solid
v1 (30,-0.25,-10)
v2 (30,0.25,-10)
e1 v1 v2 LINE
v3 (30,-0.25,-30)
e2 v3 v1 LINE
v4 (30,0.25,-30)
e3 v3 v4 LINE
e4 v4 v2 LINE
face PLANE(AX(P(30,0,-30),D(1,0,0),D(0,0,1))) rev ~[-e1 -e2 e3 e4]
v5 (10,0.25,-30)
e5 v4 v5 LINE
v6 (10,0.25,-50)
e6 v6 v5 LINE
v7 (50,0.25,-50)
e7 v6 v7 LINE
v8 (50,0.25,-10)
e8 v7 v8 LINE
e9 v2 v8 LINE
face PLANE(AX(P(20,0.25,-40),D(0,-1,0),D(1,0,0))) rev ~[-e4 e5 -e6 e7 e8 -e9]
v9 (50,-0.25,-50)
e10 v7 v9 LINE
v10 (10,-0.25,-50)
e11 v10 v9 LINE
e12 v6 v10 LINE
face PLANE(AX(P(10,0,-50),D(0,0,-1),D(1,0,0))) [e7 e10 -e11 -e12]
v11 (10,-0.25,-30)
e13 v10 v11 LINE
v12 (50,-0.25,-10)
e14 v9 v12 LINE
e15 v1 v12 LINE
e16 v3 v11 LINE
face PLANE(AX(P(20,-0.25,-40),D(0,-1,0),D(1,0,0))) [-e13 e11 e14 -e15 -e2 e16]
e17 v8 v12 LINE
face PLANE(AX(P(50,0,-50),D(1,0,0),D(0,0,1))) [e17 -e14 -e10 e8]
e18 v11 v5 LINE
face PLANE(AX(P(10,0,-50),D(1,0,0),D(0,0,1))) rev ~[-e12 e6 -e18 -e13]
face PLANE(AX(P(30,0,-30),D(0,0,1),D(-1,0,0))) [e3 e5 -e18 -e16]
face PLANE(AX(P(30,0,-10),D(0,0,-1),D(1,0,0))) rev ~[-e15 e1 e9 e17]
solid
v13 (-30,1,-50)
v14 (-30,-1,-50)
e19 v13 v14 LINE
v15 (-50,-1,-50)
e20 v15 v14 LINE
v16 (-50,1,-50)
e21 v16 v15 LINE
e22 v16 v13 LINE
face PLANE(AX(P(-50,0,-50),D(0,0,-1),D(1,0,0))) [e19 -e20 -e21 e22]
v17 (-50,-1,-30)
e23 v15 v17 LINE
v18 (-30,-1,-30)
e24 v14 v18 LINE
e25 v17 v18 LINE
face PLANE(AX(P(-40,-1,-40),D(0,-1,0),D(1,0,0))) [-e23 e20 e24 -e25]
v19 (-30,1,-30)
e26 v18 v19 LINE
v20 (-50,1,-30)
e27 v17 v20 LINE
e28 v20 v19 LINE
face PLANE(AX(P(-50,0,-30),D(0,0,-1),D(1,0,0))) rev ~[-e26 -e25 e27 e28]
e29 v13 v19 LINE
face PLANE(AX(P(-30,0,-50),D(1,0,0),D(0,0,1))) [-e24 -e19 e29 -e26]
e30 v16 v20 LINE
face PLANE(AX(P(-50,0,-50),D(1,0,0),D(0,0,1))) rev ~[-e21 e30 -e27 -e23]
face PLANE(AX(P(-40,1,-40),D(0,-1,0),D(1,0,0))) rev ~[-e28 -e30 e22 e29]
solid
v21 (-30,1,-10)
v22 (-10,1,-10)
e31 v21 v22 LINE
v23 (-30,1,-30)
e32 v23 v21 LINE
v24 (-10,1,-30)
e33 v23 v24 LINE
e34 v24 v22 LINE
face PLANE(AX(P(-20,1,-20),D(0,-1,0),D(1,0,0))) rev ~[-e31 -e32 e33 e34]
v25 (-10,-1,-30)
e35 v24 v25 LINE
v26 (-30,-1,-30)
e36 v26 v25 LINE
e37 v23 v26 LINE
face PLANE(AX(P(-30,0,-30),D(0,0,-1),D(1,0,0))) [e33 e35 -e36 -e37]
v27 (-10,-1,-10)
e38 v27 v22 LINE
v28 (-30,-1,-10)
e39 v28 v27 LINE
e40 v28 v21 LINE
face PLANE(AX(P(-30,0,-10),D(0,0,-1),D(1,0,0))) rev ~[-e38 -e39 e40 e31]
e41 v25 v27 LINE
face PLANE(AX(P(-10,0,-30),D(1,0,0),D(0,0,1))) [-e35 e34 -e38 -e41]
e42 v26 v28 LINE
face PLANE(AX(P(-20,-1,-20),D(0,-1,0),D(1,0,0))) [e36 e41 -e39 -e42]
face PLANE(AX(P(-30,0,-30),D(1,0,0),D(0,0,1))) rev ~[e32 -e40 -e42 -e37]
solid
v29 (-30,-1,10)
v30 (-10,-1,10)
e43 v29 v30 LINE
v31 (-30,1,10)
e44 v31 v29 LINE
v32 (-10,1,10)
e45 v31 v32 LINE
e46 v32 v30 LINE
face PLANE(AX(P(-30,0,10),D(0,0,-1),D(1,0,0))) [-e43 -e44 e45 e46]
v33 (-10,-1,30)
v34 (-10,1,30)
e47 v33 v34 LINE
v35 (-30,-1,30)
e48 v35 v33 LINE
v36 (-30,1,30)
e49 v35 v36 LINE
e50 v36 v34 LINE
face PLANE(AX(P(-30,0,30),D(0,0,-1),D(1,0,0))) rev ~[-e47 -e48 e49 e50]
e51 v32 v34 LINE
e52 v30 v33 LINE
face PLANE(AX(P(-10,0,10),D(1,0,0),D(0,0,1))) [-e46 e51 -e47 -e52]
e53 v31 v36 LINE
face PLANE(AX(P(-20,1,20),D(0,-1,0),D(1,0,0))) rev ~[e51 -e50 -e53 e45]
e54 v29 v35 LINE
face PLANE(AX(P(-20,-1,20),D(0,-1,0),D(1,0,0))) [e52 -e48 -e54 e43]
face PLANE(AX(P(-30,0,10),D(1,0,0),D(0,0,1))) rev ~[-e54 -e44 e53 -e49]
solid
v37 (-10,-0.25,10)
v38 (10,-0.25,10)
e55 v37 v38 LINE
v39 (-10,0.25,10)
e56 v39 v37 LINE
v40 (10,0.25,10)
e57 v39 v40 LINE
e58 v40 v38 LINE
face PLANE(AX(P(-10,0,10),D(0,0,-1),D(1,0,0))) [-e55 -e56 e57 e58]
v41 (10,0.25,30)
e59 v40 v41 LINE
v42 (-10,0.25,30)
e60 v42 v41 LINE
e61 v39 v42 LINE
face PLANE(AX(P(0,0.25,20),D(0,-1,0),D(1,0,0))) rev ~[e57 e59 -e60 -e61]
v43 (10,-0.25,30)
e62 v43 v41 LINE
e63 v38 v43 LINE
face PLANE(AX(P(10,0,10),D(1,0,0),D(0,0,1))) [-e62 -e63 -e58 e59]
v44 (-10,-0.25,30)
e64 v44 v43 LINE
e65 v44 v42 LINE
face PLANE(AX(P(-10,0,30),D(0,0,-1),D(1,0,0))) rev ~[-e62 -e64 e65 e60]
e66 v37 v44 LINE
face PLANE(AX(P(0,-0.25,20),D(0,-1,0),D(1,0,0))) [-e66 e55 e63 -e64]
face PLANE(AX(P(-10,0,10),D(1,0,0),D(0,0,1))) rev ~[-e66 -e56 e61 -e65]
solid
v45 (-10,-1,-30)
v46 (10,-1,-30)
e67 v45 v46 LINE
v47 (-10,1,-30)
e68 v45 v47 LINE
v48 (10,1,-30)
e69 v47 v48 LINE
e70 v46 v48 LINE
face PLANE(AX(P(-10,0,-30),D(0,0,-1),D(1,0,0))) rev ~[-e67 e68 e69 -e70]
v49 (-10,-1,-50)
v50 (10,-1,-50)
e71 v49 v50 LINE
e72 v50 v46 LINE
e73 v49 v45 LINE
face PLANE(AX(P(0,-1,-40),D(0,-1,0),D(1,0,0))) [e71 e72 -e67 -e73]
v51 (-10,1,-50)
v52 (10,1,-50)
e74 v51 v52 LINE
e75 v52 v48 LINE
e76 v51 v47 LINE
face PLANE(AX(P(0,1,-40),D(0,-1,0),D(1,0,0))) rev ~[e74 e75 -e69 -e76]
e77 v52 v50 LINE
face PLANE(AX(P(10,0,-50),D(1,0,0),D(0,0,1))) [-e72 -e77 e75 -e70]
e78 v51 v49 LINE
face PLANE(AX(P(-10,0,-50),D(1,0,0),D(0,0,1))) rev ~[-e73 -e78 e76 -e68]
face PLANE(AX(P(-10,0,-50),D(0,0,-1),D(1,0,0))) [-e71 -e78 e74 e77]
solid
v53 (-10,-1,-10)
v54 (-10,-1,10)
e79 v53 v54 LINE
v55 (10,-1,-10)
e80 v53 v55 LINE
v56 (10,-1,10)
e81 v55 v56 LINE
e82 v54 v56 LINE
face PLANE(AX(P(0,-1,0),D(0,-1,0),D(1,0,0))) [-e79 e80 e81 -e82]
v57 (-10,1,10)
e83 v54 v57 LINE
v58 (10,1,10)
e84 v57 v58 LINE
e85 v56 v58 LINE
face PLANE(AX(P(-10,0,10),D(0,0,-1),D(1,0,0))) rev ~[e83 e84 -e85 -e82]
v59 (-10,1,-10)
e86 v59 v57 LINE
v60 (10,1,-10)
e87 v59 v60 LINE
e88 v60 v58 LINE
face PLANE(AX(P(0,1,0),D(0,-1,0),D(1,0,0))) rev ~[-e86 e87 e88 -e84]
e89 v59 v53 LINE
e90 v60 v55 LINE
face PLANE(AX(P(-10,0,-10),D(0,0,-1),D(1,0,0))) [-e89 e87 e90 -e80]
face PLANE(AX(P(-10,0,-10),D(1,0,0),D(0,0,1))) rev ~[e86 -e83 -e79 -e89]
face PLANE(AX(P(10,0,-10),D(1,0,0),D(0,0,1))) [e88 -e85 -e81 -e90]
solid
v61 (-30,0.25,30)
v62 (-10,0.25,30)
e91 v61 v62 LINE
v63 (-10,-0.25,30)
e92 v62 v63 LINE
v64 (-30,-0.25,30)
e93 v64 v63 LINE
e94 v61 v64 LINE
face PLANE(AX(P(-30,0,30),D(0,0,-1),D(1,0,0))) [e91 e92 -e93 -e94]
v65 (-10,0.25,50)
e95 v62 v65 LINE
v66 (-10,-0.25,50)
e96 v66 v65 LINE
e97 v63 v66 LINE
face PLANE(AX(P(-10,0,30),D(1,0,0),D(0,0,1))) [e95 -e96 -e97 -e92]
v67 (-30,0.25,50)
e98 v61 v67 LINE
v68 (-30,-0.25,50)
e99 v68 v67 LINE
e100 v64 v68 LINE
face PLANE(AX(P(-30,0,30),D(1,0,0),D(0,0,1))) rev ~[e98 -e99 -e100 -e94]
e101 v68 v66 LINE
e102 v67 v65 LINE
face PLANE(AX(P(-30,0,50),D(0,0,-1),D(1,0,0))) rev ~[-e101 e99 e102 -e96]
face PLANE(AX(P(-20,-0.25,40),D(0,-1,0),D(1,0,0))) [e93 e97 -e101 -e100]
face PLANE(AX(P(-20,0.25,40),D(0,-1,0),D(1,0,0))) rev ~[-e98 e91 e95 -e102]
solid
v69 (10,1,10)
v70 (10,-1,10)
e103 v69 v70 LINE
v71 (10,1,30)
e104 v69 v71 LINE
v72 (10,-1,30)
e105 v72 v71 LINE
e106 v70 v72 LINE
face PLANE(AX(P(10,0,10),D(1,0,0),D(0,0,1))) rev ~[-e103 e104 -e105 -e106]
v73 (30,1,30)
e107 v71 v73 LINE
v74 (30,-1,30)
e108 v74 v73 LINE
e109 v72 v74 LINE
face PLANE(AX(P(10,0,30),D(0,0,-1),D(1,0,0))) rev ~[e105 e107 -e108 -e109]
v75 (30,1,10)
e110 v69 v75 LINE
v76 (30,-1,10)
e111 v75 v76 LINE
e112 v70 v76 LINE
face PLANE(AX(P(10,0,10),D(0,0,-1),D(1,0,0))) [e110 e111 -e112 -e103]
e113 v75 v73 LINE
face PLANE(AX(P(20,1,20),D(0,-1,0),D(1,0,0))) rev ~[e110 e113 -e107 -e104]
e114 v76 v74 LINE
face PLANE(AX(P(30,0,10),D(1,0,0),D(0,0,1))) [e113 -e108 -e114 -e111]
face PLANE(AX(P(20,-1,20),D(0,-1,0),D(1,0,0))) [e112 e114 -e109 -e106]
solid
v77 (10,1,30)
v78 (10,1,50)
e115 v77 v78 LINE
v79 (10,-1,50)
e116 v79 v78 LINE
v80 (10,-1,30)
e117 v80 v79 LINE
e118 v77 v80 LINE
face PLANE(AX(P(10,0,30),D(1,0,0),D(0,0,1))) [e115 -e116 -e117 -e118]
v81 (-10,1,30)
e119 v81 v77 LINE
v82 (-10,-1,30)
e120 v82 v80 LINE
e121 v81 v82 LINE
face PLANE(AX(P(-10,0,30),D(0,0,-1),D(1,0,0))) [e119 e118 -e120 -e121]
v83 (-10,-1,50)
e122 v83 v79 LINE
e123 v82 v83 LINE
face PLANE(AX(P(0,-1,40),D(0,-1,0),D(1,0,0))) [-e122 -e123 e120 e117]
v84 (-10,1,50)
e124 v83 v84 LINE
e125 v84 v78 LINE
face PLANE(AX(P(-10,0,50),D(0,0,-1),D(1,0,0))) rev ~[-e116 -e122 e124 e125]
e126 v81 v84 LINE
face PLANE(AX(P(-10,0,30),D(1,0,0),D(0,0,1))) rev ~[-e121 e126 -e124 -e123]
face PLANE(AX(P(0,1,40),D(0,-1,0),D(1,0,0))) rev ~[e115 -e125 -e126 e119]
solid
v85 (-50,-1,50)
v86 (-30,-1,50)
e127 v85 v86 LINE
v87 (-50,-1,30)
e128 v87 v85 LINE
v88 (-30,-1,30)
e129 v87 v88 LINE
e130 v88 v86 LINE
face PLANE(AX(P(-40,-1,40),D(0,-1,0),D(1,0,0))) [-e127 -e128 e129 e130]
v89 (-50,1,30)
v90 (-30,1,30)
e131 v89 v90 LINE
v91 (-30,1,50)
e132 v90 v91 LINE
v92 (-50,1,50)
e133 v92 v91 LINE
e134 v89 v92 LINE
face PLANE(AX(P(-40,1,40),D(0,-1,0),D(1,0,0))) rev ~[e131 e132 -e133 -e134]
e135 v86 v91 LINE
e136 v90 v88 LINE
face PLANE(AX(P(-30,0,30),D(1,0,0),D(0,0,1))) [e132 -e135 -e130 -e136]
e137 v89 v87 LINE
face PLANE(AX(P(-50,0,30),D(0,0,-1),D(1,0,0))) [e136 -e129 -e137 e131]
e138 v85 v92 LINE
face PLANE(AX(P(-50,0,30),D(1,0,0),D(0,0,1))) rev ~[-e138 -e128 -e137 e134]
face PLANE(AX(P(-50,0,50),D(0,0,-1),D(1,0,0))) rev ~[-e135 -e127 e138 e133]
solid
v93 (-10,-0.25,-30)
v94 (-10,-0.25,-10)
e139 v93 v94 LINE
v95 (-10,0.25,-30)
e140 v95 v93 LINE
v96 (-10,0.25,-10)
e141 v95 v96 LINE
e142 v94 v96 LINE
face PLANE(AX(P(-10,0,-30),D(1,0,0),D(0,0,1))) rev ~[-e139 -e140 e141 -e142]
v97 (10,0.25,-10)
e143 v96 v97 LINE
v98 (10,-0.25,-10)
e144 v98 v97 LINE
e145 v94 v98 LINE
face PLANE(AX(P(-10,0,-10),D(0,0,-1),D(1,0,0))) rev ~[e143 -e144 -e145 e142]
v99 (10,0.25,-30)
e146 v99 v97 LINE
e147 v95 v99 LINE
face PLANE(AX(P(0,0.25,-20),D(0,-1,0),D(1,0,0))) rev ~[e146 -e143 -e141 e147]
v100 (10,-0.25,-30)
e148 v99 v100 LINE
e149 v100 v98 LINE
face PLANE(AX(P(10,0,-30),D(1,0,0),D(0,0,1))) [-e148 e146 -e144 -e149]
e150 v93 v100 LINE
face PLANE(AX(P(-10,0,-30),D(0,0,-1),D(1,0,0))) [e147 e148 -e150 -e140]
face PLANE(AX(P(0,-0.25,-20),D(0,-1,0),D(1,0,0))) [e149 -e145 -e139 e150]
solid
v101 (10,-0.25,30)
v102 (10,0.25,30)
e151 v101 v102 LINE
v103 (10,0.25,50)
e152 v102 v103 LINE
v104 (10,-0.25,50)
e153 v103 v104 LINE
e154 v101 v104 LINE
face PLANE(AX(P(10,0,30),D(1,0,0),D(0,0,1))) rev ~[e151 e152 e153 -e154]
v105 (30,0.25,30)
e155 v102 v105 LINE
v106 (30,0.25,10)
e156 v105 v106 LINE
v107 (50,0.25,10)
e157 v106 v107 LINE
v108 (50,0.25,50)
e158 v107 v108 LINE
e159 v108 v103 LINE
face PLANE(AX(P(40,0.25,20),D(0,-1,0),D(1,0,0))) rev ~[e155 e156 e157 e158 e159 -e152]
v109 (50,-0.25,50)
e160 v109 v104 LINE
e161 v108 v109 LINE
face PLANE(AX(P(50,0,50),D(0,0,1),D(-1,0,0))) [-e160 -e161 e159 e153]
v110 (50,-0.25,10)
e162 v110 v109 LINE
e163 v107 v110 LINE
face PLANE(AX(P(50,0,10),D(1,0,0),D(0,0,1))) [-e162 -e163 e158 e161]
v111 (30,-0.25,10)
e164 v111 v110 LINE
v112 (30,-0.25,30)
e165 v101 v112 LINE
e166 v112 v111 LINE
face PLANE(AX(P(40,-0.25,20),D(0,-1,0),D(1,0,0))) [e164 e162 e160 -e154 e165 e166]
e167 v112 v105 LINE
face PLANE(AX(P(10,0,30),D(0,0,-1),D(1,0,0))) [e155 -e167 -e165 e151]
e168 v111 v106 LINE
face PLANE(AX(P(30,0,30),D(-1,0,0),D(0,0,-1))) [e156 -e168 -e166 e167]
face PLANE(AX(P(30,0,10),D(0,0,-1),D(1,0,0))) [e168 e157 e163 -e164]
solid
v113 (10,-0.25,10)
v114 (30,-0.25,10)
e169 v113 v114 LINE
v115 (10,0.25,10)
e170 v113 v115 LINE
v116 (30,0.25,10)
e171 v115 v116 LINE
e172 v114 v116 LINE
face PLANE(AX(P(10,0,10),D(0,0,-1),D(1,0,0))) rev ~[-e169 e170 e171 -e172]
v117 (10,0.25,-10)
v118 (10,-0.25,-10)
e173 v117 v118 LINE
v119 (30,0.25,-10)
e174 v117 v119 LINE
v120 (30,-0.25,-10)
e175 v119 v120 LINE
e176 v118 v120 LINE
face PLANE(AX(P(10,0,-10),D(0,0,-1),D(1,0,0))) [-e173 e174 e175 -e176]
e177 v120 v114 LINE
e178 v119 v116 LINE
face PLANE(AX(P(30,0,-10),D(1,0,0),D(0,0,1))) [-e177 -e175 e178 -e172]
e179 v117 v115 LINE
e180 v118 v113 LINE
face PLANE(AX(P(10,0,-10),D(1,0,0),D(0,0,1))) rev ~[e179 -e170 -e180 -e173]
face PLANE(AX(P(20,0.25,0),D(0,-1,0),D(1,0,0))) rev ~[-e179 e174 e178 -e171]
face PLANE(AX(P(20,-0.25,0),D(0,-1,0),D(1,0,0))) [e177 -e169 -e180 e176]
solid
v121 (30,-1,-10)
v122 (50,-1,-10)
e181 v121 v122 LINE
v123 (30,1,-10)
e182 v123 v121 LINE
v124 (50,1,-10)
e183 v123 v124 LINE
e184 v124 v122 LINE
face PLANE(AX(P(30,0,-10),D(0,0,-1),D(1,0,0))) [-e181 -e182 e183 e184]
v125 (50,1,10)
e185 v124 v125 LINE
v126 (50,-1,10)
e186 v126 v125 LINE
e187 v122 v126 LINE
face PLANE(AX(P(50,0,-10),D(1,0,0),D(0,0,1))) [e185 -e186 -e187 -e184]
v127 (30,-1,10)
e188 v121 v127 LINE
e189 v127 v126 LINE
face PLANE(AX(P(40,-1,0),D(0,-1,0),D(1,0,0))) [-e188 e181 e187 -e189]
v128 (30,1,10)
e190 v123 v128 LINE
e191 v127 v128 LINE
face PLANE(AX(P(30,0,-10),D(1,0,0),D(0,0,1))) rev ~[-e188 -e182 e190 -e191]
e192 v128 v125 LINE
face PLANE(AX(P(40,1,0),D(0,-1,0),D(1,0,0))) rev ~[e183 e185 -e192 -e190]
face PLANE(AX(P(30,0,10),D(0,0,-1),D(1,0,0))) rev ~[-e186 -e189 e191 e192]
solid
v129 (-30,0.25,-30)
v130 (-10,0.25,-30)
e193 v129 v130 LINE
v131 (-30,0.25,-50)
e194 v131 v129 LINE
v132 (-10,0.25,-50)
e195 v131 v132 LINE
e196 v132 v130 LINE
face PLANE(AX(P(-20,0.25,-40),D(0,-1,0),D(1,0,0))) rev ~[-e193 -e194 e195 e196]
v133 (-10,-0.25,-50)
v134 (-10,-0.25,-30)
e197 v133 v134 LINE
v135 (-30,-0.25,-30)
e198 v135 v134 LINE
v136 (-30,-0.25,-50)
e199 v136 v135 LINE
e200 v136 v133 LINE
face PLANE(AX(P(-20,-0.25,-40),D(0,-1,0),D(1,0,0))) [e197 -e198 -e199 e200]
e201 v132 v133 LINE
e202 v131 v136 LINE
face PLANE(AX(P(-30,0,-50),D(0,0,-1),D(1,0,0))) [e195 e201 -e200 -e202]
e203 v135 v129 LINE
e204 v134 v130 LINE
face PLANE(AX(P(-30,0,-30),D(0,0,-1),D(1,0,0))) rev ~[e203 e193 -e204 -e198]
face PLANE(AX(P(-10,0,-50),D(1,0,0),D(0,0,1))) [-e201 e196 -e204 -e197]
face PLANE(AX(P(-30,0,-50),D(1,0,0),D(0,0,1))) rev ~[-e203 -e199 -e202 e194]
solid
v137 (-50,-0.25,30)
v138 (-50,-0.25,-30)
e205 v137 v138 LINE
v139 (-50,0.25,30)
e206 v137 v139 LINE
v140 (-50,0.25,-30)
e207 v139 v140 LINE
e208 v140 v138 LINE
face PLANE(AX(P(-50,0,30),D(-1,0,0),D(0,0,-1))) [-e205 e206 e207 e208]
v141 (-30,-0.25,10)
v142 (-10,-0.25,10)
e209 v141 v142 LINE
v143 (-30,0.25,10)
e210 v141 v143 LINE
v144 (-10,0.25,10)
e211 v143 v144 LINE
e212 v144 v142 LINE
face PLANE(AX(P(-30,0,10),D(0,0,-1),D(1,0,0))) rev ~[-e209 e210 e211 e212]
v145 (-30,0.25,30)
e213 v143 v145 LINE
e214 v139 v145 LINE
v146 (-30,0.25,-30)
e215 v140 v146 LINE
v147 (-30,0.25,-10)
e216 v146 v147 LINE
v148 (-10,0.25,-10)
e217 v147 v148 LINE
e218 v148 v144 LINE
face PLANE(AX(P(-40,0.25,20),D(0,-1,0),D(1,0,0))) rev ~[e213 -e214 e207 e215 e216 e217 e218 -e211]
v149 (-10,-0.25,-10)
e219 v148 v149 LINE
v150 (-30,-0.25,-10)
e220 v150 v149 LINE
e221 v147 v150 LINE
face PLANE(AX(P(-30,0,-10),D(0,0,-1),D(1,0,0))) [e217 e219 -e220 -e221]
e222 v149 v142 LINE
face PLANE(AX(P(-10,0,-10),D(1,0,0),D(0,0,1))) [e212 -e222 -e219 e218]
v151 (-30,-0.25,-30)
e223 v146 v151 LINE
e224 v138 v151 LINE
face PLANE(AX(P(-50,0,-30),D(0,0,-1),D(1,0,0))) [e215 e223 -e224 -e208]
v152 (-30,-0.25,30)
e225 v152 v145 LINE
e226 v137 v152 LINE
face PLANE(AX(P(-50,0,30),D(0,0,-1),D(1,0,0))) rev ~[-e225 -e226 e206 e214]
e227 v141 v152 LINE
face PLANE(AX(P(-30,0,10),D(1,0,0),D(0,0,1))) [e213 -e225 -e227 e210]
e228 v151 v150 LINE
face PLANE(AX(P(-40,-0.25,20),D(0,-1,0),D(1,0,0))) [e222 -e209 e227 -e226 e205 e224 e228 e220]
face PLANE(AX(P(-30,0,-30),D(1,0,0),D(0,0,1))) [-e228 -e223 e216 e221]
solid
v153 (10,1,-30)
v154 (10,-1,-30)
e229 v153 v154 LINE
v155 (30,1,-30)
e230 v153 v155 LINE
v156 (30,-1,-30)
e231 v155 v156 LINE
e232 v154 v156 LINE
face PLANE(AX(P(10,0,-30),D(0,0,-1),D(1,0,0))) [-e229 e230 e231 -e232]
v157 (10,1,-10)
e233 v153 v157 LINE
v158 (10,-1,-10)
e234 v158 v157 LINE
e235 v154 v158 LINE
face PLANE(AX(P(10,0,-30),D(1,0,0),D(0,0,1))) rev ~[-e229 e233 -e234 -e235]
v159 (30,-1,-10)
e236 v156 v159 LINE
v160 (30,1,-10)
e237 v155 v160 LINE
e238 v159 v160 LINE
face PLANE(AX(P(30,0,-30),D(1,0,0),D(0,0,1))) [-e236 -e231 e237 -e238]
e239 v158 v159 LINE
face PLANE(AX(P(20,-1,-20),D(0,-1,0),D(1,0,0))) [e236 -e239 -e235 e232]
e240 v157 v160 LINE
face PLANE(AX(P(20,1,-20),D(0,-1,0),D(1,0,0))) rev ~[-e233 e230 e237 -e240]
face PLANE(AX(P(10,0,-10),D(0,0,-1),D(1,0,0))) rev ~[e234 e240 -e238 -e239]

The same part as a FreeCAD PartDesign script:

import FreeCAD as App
import Part
import Sketcher

V = App.Vector

doc = App.newDocument("Part")
body = doc.addObject("PartDesign::Body", "Body")

# Sketch on XZ plane
sketch1 = doc.addObject("Sketcher::SketchObject", "Sketch")
body.addObject(sketch1)
sketch1.AttachmentSupport = (doc.XZ_Plane, [""])
sketch1.MapMode = "FlatFace"
sketch1.addGeometry([
    Part.LineSegment(V(-50, 50, 0), V(-50, 30, 0)),
    Part.LineSegment(V(-50, 30, 0), V(-30, 30, 0)),
    Part.LineSegment(V(-30, 30, 0), V(-30, 50, 0)),
    Part.LineSegment(V(-30, 50, 0), V(-50, 50, 0)),
], False)
sketch1.addConstraint([
    Sketcher.Constraint("Coincident", 0, 2, 1, 1),
    Sketcher.Constraint("Coincident", 1, 2, 2, 1),
    Sketcher.Constraint("Coincident", 2, 2, 3, 1),
    Sketcher.Constraint("Coincident", 3, 2, 0, 1),
    Sketcher.Constraint("Vertical", 0),
    Sketcher.Constraint("Horizontal", 1),
    Sketcher.Constraint("Vertical", 2),
    Sketcher.Constraint("Horizontal", 3),
    Sketcher.Constraint("Equal", 3, 0),
    Sketcher.Constraint("DistanceX", 1, 1, 1, 2, 20.0),
    Sketcher.Constraint("DistanceX", 0, 2, -1, 1, 50.0),
    Sketcher.Constraint("DistanceY", -1, 1, 0, 2, 30.0),
])
pad1 = doc.addObject("PartDesign::Pad", "Pad")
body.addObject(pad1)
pad1.Profile = sketch1
pad1.Length = 2
pad1.Midplane = True
body2 = doc.addObject("PartDesign::Body", "Body001")

# Sketch on XZ plane
sketch2 = doc.addObject("Sketcher::SketchObject", "Sketch001")
body2.addObject(sketch2)
sketch2.AttachmentSupport = (doc.getObject("XZ_Plane001"), [""])
sketch2.MapMode = "FlatFace"
sketch2.addGeometry([
    Part.LineSegment(V(-30, 30, 0), V(-30, 10, 0)),
    Part.LineSegment(V(-30, 10, 0), V(-10, 10, 0)),
    Part.LineSegment(V(-10, 10, 0), V(-10, 30, 0)),
    Part.LineSegment(V(-10, 30, 0), V(-30, 30, 0)),
], False)
sketch2.addConstraint([
    Sketcher.Constraint("Coincident", 0, 2, 1, 1),
    Sketcher.Constraint("Coincident", 1, 2, 2, 1),
    Sketcher.Constraint("Coincident", 2, 2, 3, 1),
    Sketcher.Constraint("Coincident", 3, 2, 0, 1),
    Sketcher.Constraint("Vertical", 0),
    Sketcher.Constraint("Horizontal", 1),
    Sketcher.Constraint("Vertical", 2),
    Sketcher.Constraint("Horizontal", 3),
    Sketcher.Constraint("Equal", 3, 0),
    Sketcher.Constraint("DistanceX", 1, 1, 1, 2, 20.0),
    Sketcher.Constraint("DistanceX", 0, 2, -1, 1, 30.0),
    Sketcher.Constraint("DistanceY", -1, 1, 0, 2, 10.0),
])
pad2 = doc.addObject("PartDesign::Pad", "Pad001")
body2.addObject(pad2)
pad2.Profile = sketch2
pad2.Length = 2
pad2.Midplane = True
body3 = doc.addObject("PartDesign::Body", "Body002")

# Sketch on XZ plane
sketch3 = doc.addObject("Sketcher::SketchObject", "Sketch002")
body3.addObject(sketch3)
sketch3.AttachmentSupport = (doc.getObject("XZ_Plane002"), [""])
sketch3.MapMode = "FlatFace"
sketch3.addGeometry([
    Part.LineSegment(V(-10, 10, 0), V(-10, -10, 0)),
    Part.LineSegment(V(-10, -10, 0), V(10, -10, 0)),
    Part.LineSegment(V(10, -10, 0), V(10, 10, 0)),
    Part.LineSegment(V(10, 10, 0), V(-10, 10, 0)),
], False)
sketch3.addConstraint([
    Sketcher.Constraint("Coincident", 0, 2, 1, 1),
    Sketcher.Constraint("Coincident", 1, 2, 2, 1),
    Sketcher.Constraint("Coincident", 2, 2, 3, 1),
    Sketcher.Constraint("Coincident", 3, 2, 0, 1),
    Sketcher.Constraint("Vertical", 0),
    Sketcher.Constraint("Horizontal", 1),
    Sketcher.Constraint("Vertical", 2),
    Sketcher.Constraint("Horizontal", 3),
    Sketcher.Constraint("Symmetric", 0, 2, 2, 2, -1, 1),
    Sketcher.Constraint("Equal", 3, 0),
    Sketcher.Constraint("DistanceX", 1, 1, 1, 2, 20.0),
])
pad3 = doc.addObject("PartDesign::Pad", "Pad002")
body3.addObject(pad3)
pad3.Profile = sketch3
pad3.Length = 2
pad3.Midplane = True
body4 = doc.addObject("PartDesign::Body", "Body003")

# Sketch on XZ plane
sketch4 = doc.addObject("Sketcher::SketchObject", "Sketch003")
body4.addObject(sketch4)
sketch4.AttachmentSupport = (doc.getObject("XZ_Plane003"), [""])
sketch4.MapMode = "FlatFace"
sketch4.addGeometry([
    Part.LineSegment(V(-30, -10, 0), V(-30, -30, 0)),
    Part.LineSegment(V(-30, -30, 0), V(-10, -30, 0)),
    Part.LineSegment(V(-10, -30, 0), V(-10, -10, 0)),
    Part.LineSegment(V(-10, -10, 0), V(-30, -10, 0)),
], False)
sketch4.addConstraint([
    Sketcher.Constraint("Coincident", 0, 2, 1, 1),
    Sketcher.Constraint("Coincident", 1, 2, 2, 1),
    Sketcher.Constraint("Coincident", 2, 2, 3, 1),
    Sketcher.Constraint("Coincident", 3, 2, 0, 1),
    Sketcher.Constraint("Vertical", 0),
    Sketcher.Constraint("Horizontal", 1),
    Sketcher.Constraint("Vertical", 2),
    Sketcher.Constraint("Horizontal", 3),
    Sketcher.Constraint("Equal", 3, 0),
    Sketcher.Constraint("DistanceX", 1, 1, 1, 2, 20.0),
    Sketcher.Constraint("DistanceX", 0, 2, -1, 1, 30.0),
    Sketcher.Constraint("DistanceY", 0, 2, -1, 1, 30.0),
])
pad4 = doc.addObject("PartDesign::Pad", "Pad003")
body4.addObject(pad4)
pad4.Profile = sketch4
pad4.Length = 2
pad4.Midplane = True
body5 = doc.addObject("PartDesign::Body", "Body004")

# Sketch on XZ plane
sketch5 = doc.addObject("Sketcher::SketchObject", "Sketch004")
body5.addObject(sketch5)
sketch5.AttachmentSupport = (doc.getObject("XZ_Plane004"), [""])
sketch5.MapMode = "FlatFace"
sketch5.addGeometry([
    Part.LineSegment(V(-50, -30, 0), V(-50, -50, 0)),
    Part.LineSegment(V(-50, -50, 0), V(-30, -50, 0)),
    Part.LineSegment(V(-30, -50, 0), V(-30, -30, 0)),
    Part.LineSegment(V(-30, -30, 0), V(-50, -30, 0)),
], False)
sketch5.addConstraint([
    Sketcher.Constraint("Coincident", 0, 2, 1, 1),
    Sketcher.Constraint("Coincident", 1, 2, 2, 1),
    Sketcher.Constraint("Coincident", 2, 2, 3, 1),
    Sketcher.Constraint("Coincident", 3, 2, 0, 1),
    Sketcher.Constraint("Vertical", 0),
    Sketcher.Constraint("Horizontal", 1),
    Sketcher.Constraint("Vertical", 2),
    Sketcher.Constraint("Horizontal", 3),
    Sketcher.Constraint("Equal", 3, 0),
    Sketcher.Constraint("DistanceX", 1, 1, 1, 2, 20.0),
    Sketcher.Constraint("DistanceX", 0, 2, -1, 1, 50.0),
    Sketcher.Constraint("DistanceY", 0, 2, -1, 1, 50.0),
])
pad5 = doc.addObject("PartDesign::Pad", "Pad004")
body5.addObject(pad5)
pad5.Profile = sketch5
pad5.Length = 2
pad5.Midplane = True
body6 = doc.addObject("PartDesign::Body", "Body005")

# Sketch on XZ plane
sketch6 = doc.addObject("Sketcher::SketchObject", "Sketch005")
body6.addObject(sketch6)
sketch6.AttachmentSupport = (doc.getObject("XZ_Plane005"), [""])
sketch6.MapMode = "FlatFace"
sketch6.addGeometry([
    Part.LineSegment(V(-10, 50, 0), V(-10, 30, 0)),
    Part.LineSegment(V(-10, 30, 0), V(10, 30, 0)),
    Part.LineSegment(V(10, 30, 0), V(10, 50, 0)),
    Part.LineSegment(V(10, 50, 0), V(-10, 50, 0)),
], False)
sketch6.addConstraint([
    Sketcher.Constraint("Coincident", 0, 2, 1, 1),
    Sketcher.Constraint("Coincident", 1, 2, 2, 1),
    Sketcher.Constraint("Coincident", 2, 2, 3, 1),
    Sketcher.Constraint("Coincident", 3, 2, 0, 1),
    Sketcher.Constraint("Vertical", 0),
    Sketcher.Constraint("Horizontal", 1),
    Sketcher.Constraint("Vertical", 2),
    Sketcher.Constraint("Horizontal", 3),
    Sketcher.Constraint("Equal", 3, 0),
    Sketcher.Constraint("DistanceX", 1, 1, 1, 2, 20.0),
    Sketcher.Constraint("DistanceX", 0, 2, -1, 1, 10.0),
    Sketcher.Constraint("DistanceY", -1, 1, 0, 2, 30.0),
])
pad6 = doc.addObject("PartDesign::Pad", "Pad005")
body6.addObject(pad6)
pad6.Profile = sketch6
pad6.Length = 2
pad6.Midplane = True
body7 = doc.addObject("PartDesign::Body", "Body006")

# Sketch on XZ plane
sketch7 = doc.addObject("Sketcher::SketchObject", "Sketch006")
body7.addObject(sketch7)
sketch7.AttachmentSupport = (doc.getObject("XZ_Plane006"), [""])
sketch7.MapMode = "FlatFace"
sketch7.addGeometry([
    Part.LineSegment(V(10, 30, 0), V(10, 10, 0)),
    Part.LineSegment(V(10, 10, 0), V(30, 10, 0)),
    Part.LineSegment(V(30, 10, 0), V(30, 30, 0)),
    Part.LineSegment(V(30, 30, 0), V(10, 30, 0)),
], False)
sketch7.addConstraint([
    Sketcher.Constraint("Coincident", 0, 2, 1, 1),
    Sketcher.Constraint("Coincident", 1, 2, 2, 1),
    Sketcher.Constraint("Coincident", 2, 2, 3, 1),
    Sketcher.Constraint("Coincident", 3, 2, 0, 1),
    Sketcher.Constraint("Vertical", 0),
    Sketcher.Constraint("Horizontal", 1),
    Sketcher.Constraint("Vertical", 2),
    Sketcher.Constraint("Horizontal", 3),
    Sketcher.Constraint("Equal", 3, 0),
    Sketcher.Constraint("DistanceX", 1, 1, 1, 2, 20.0),
    Sketcher.Constraint("DistanceX", -1, 1, 0, 2, 10.0),
    Sketcher.Constraint("DistanceY", -1, 1, 0, 2, 10.0),
])
pad7 = doc.addObject("PartDesign::Pad", "Pad006")
body7.addObject(pad7)
pad7.Profile = sketch7
pad7.Length = 2
pad7.Midplane = True
body8 = doc.addObject("PartDesign::Body", "Body007")

# Sketch on XZ plane
sketch8 = doc.addObject("Sketcher::SketchObject", "Sketch007")
body8.addObject(sketch8)
sketch8.AttachmentSupport = (doc.getObject("XZ_Plane007"), [""])
sketch8.MapMode = "FlatFace"
sketch8.addGeometry([
    Part.LineSegment(V(30, 10, 0), V(30, -10, 0)),
    Part.LineSegment(V(30, -10, 0), V(50, -10, 0)),
    Part.LineSegment(V(50, -10, 0), V(50, 10, 0)),
    Part.LineSegment(V(50, 10, 0), V(30, 10, 0)),
], False)
sketch8.addConstraint([
    Sketcher.Constraint("Coincident", 0, 2, 1, 1),
    Sketcher.Constraint("Coincident", 1, 2, 2, 1),
    Sketcher.Constraint("Coincident", 2, 2, 3, 1),
    Sketcher.Constraint("Coincident", 3, 2, 0, 1),
    Sketcher.Constraint("Vertical", 0),
    Sketcher.Constraint("Horizontal", 1),
    Sketcher.Constraint("Vertical", 2),
    Sketcher.Constraint("Horizontal", 3),
    Sketcher.Constraint("Equal", 3, 0),
    Sketcher.Constraint("DistanceX", 1, 1, 1, 2, 20.0),
    Sketcher.Constraint("DistanceX", -1, 1, 0, 2, 30.0),
    Sketcher.Constraint("DistanceY", 0, 2, -1, 1, 10.0),
])
pad8 = doc.addObject("PartDesign::Pad", "Pad007")
body8.addObject(pad8)
pad8.Profile = sketch8
pad8.Length = 2
pad8.Midplane = True
body9 = doc.addObject("PartDesign::Body", "Body008")

# Sketch on XZ plane
sketch9 = doc.addObject("Sketcher::SketchObject", "Sketch008")
body9.addObject(sketch9)
sketch9.AttachmentSupport = (doc.getObject("XZ_Plane008"), [""])
sketch9.MapMode = "FlatFace"
sketch9.addGeometry([
    Part.LineSegment(V(10, -10, 0), V(10, -30, 0)),
    Part.LineSegment(V(10, -30, 0), V(30, -30, 0)),
    Part.LineSegment(V(30, -30, 0), V(30, -10, 0)),
    Part.LineSegment(V(30, -10, 0), V(10, -10, 0)),
], False)
sketch9.addConstraint([
    Sketcher.Constraint("Coincident", 0, 2, 1, 1),
    Sketcher.Constraint("Coincident", 1, 2, 2, 1),
    Sketcher.Constraint("Coincident", 2, 2, 3, 1),
    Sketcher.Constraint("Coincident", 3, 2, 0, 1),
    Sketcher.Constraint("Vertical", 0),
    Sketcher.Constraint("Horizontal", 1),
    Sketcher.Constraint("Vertical", 2),
    Sketcher.Constraint("Horizontal", 3),
    Sketcher.Constraint("Equal", 3, 0),
    Sketcher.Constraint("DistanceX", 1, 1, 1, 2, 20.0),
    Sketcher.Constraint("DistanceX", -1, 1, 0, 2, 10.0),
    Sketcher.Constraint("DistanceY", 0, 2, -1, 1, 30.0),
])
pad9 = doc.addObject("PartDesign::Pad", "Pad008")
body9.addObject(pad9)
pad9.Profile = sketch9
pad9.Length = 2
pad9.Midplane = True
body10 = doc.addObject("PartDesign::Body", "Body009")

# Sketch on XZ plane
sketch10 = doc.addObject("Sketcher::SketchObject", "Sketch009")
body10.addObject(sketch10)
sketch10.AttachmentSupport = (doc.getObject("XZ_Plane009"), [""])
sketch10.MapMode = "FlatFace"
sketch10.addGeometry([
    Part.LineSegment(V(-10, -30, 0), V(-10, -50, 0)),
    Part.LineSegment(V(-10, -50, 0), V(10, -50, 0)),
    Part.LineSegment(V(10, -50, 0), V(10, -30, 0)),
    Part.LineSegment(V(10, -30, 0), V(-10, -30, 0)),
], False)
sketch10.addConstraint([
    Sketcher.Constraint("Coincident", 0, 2, 1, 1),
    Sketcher.Constraint("Coincident", 1, 2, 2, 1),
    Sketcher.Constraint("Coincident", 2, 2, 3, 1),
    Sketcher.Constraint("Coincident", 3, 2, 0, 1),
    Sketcher.Constraint("Vertical", 0),
    Sketcher.Constraint("Horizontal", 1),
    Sketcher.Constraint("Vertical", 2),
    Sketcher.Constraint("Horizontal", 3),
    Sketcher.Constraint("Equal", 3, 0),
    Sketcher.Constraint("DistanceX", 1, 1, 1, 2, 20.0),
    Sketcher.Constraint("DistanceX", 0, 2, -1, 1, 10.0),
    Sketcher.Constraint("DistanceY", 0, 2, -1, 1, 50.0),
])
pad10 = doc.addObject("PartDesign::Pad", "Pad009")
body10.addObject(pad10)
pad10.Profile = sketch10
pad10.Length = 2
pad10.Midplane = True
body11 = doc.addObject("PartDesign::Body", "Body010")

# Sketch on XZ plane
sketch11 = doc.addObject("Sketcher::SketchObject", "Sketch010")
body11.addObject(sketch11)
sketch11.AttachmentSupport = (doc.getObject("XZ_Plane010"), [""])
sketch11.MapMode = "FlatFace"
sketch11.addGeometry([
    Part.LineSegment(V(-50, 30, 0), V(-50, -30, 0)),  # 0
    Part.LineSegment(V(-50, -30, 0), V(-30, -30, 0)),  # 1
    Part.LineSegment(V(-30, -30, 0), V(-30, -10, 0)),  # 2
    Part.LineSegment(V(-30, -10, 0), V(-10, -10, 0)),  # 3
    Part.LineSegment(V(-10, -10, 0), V(-10, 10, 0)),  # 4
    Part.LineSegment(V(-10, 10, 0), V(-30, 10, 0)),  # 5
    Part.LineSegment(V(-30, 10, 0), V(-30, 30, 0)),  # 6
    Part.LineSegment(V(-30, 30, 0), V(-50, 30, 0)),  # 7
], False)
sketch11.addConstraint([
    Sketcher.Constraint("Coincident", 0, 2, 1, 1),
    Sketcher.Constraint("Coincident", 1, 2, 2, 1),
    Sketcher.Constraint("Coincident", 2, 2, 3, 1),
    Sketcher.Constraint("Coincident", 3, 2, 4, 1),
    Sketcher.Constraint("Coincident", 4, 2, 5, 1),
    Sketcher.Constraint("Coincident", 5, 2, 6, 1),
    Sketcher.Constraint("Coincident", 6, 2, 7, 1),
    Sketcher.Constraint("Coincident", 7, 2, 0, 1),
    Sketcher.Constraint("Vertical", 0),
    Sketcher.Constraint("Horizontal", 1),
    Sketcher.Constraint("Vertical", 2),
    Sketcher.Constraint("Horizontal", 3),
    Sketcher.Constraint("Vertical", 4),
    Sketcher.Constraint("Horizontal", 5),
    Sketcher.Constraint("Vertical", 6),
    Sketcher.Constraint("Horizontal", 7),
    Sketcher.Constraint("Symmetric", 2, 2, 5, 2, -1),
    Sketcher.Constraint("Equal", 1, 3),
    Sketcher.Constraint("Equal", 7, 2),
    Sketcher.Constraint("Equal", 2, 4),
    Sketcher.Constraint("Equal", 4, 6),
    Sketcher.Constraint("DistanceX", 1, 1, 1, 2, 20.0),
    Sketcher.Constraint("DistanceX", 0, 2, -1, 1, 50.0),
])
pad11 = doc.addObject("PartDesign::Pad", "Pad010")
body11.addObject(pad11)
pad11.Profile = sketch11
pad11.Length = 0.5
pad11.Midplane = True
body12 = doc.addObject("PartDesign::Body", "Body011")

# Sketch on XZ plane
sketch12 = doc.addObject("Sketcher::SketchObject", "Sketch011")
body12.addObject(sketch12)
sketch12.AttachmentSupport = (doc.getObject("XZ_Plane011"), [""])
sketch12.MapMode = "FlatFace"
sketch12.addGeometry([
    Part.LineSegment(V(-30, 50, 0), V(-30, 30, 0)),
    Part.LineSegment(V(-30, 30, 0), V(-10, 30, 0)),
    Part.LineSegment(V(-10, 30, 0), V(-10, 50, 0)),
    Part.LineSegment(V(-10, 50, 0), V(-30, 50, 0)),
], False)
sketch12.addConstraint([
    Sketcher.Constraint("Coincident", 0, 2, 1, 1),
    Sketcher.Constraint("Coincident", 1, 2, 2, 1),
    Sketcher.Constraint("Coincident", 2, 2, 3, 1),
    Sketcher.Constraint("Coincident", 3, 2, 0, 1),
    Sketcher.Constraint("Vertical", 0),
    Sketcher.Constraint("Horizontal", 1),
    Sketcher.Constraint("Vertical", 2),
    Sketcher.Constraint("Horizontal", 3),
    Sketcher.Constraint("Equal", 3, 0),
    Sketcher.Constraint("DistanceX", 1, 1, 1, 2, 20.0),
    Sketcher.Constraint("DistanceX", 0, 2, -1, 1, 30.0),
    Sketcher.Constraint("DistanceY", -1, 1, 0, 2, 30.0),
])
pad12 = doc.addObject("PartDesign::Pad", "Pad011")
body12.addObject(pad12)
pad12.Profile = sketch12
pad12.Length = 0.5
pad12.Midplane = True
body13 = doc.addObject("PartDesign::Body", "Body012")

# Sketch on XZ plane
sketch13 = doc.addObject("Sketcher::SketchObject", "Sketch012")
body13.addObject(sketch13)
sketch13.AttachmentSupport = (doc.getObject("XZ_Plane012"), [""])
sketch13.MapMode = "FlatFace"
sketch13.addGeometry([
    Part.LineSegment(V(-10, 30, 0), V(-10, 10, 0)),
    Part.LineSegment(V(-10, 10, 0), V(10, 10, 0)),
    Part.LineSegment(V(10, 10, 0), V(10, 30, 0)),
    Part.LineSegment(V(10, 30, 0), V(-10, 30, 0)),
], False)
sketch13.addConstraint([
    Sketcher.Constraint("Coincident", 0, 2, 1, 1),
    Sketcher.Constraint("Coincident", 1, 2, 2, 1),
    Sketcher.Constraint("Coincident", 2, 2, 3, 1),
    Sketcher.Constraint("Coincident", 3, 2, 0, 1),
    Sketcher.Constraint("Vertical", 0),
    Sketcher.Constraint("Horizontal", 1),
    Sketcher.Constraint("Vertical", 2),
    Sketcher.Constraint("Horizontal", 3),
    Sketcher.Constraint("Equal", 3, 0),
    Sketcher.Constraint("DistanceX", 1, 1, 1, 2, 20.0),
    Sketcher.Constraint("DistanceX", 0, 2, -1, 1, 10.0),
    Sketcher.Constraint("DistanceY", -1, 1, 0, 2, 10.0),
])
pad13 = doc.addObject("PartDesign::Pad", "Pad012")
body13.addObject(pad13)
pad13.Profile = sketch13
pad13.Length = 0.5
pad13.Midplane = True
body14 = doc.addObject("PartDesign::Body", "Body013")

# Sketch on XZ plane
sketch14 = doc.addObject("Sketcher::SketchObject", "Sketch013")
body14.addObject(sketch14)
sketch14.AttachmentSupport = (doc.getObject("XZ_Plane013"), [""])
sketch14.MapMode = "FlatFace"
sketch14.addGeometry([
    Part.LineSegment(V(10, 10, 0), V(10, -10, 0)),
    Part.LineSegment(V(10, -10, 0), V(30, -10, 0)),
    Part.LineSegment(V(30, -10, 0), V(30, 10, 0)),
    Part.LineSegment(V(30, 10, 0), V(10, 10, 0)),
], False)
sketch14.addConstraint([
    Sketcher.Constraint("Coincident", 0, 2, 1, 1),
    Sketcher.Constraint("Coincident", 1, 2, 2, 1),
    Sketcher.Constraint("Coincident", 2, 2, 3, 1),
    Sketcher.Constraint("Coincident", 3, 2, 0, 1),
    Sketcher.Constraint("Vertical", 0),
    Sketcher.Constraint("Horizontal", 1),
    Sketcher.Constraint("Vertical", 2),
    Sketcher.Constraint("Horizontal", 3),
    Sketcher.Constraint("Equal", 3, 0),
    Sketcher.Constraint("DistanceX", 1, 1, 1, 2, 20.0),
    Sketcher.Constraint("DistanceX", -1, 1, 0, 2, 10.0),
    Sketcher.Constraint("DistanceY", 0, 2, -1, 1, 10.0),
])
pad14 = doc.addObject("PartDesign::Pad", "Pad013")
body14.addObject(pad14)
pad14.Profile = sketch14
pad14.Length = 0.5
pad14.Midplane = True
body15 = doc.addObject("PartDesign::Body", "Body014")

# Sketch on XZ plane
sketch15 = doc.addObject("Sketcher::SketchObject", "Sketch014")
body15.addObject(sketch15)
sketch15.AttachmentSupport = (doc.getObject("XZ_Plane014"), [""])
sketch15.MapMode = "FlatFace"
sketch15.addGeometry([
    Part.LineSegment(V(-10, -10, 0), V(-10, -30, 0)),
    Part.LineSegment(V(-10, -30, 0), V(10, -30, 0)),
    Part.LineSegment(V(10, -30, 0), V(10, -10, 0)),
    Part.LineSegment(V(10, -10, 0), V(-10, -10, 0)),
], False)
sketch15.addConstraint([
    Sketcher.Constraint("Coincident", 0, 2, 1, 1),
    Sketcher.Constraint("Coincident", 1, 2, 2, 1),
    Sketcher.Constraint("Coincident", 2, 2, 3, 1),
    Sketcher.Constraint("Coincident", 3, 2, 0, 1),
    Sketcher.Constraint("Vertical", 0),
    Sketcher.Constraint("Horizontal", 1),
    Sketcher.Constraint("Vertical", 2),
    Sketcher.Constraint("Horizontal", 3),
    Sketcher.Constraint("Equal", 3, 0),
    Sketcher.Constraint("DistanceX", 1, 1, 1, 2, 20.0),
    Sketcher.Constraint("DistanceX", 0, 2, -1, 1, 10.0),
    Sketcher.Constraint("DistanceY", 0, 2, -1, 1, 30.0),
])
pad15 = doc.addObject("PartDesign::Pad", "Pad014")
body15.addObject(pad15)
pad15.Profile = sketch15
pad15.Length = 0.5
pad15.Midplane = True
body16 = doc.addObject("PartDesign::Body", "Body015")

# Sketch on XZ plane
sketch16 = doc.addObject("Sketcher::SketchObject", "Sketch015")
body16.addObject(sketch16)
sketch16.AttachmentSupport = (doc.getObject("XZ_Plane015"), [""])
sketch16.MapMode = "FlatFace"
sketch16.addGeometry([
    Part.LineSegment(V(-30, -30, 0), V(-30, -50, 0)),
    Part.LineSegment(V(-30, -50, 0), V(-10, -50, 0)),
    Part.LineSegment(V(-10, -50, 0), V(-10, -30, 0)),
    Part.LineSegment(V(-10, -30, 0), V(-30, -30, 0)),
], False)
sketch16.addConstraint([
    Sketcher.Constraint("Coincident", 0, 2, 1, 1),
    Sketcher.Constraint("Coincident", 1, 2, 2, 1),
    Sketcher.Constraint("Coincident", 2, 2, 3, 1),
    Sketcher.Constraint("Coincident", 3, 2, 0, 1),
    Sketcher.Constraint("Vertical", 0),
    Sketcher.Constraint("Horizontal", 1),
    Sketcher.Constraint("Vertical", 2),
    Sketcher.Constraint("Horizontal", 3),
    Sketcher.Constraint("Equal", 3, 0),
    Sketcher.Constraint("DistanceX", 1, 1, 1, 2, 20.0),
    Sketcher.Constraint("DistanceX", 0, 2, -1, 1, 30.0),
    Sketcher.Constraint("DistanceY", 0, 2, -1, 1, 50.0),
])
pad16 = doc.addObject("PartDesign::Pad", "Pad015")
body16.addObject(pad16)
pad16.Profile = sketch16
pad16.Length = 0.5
pad16.Midplane = True
body17 = doc.addObject("PartDesign::Body", "Body016")

# Sketch on XZ plane
sketch17 = doc.addObject("Sketcher::SketchObject", "Sketch016")
body17.addObject(sketch17)
sketch17.AttachmentSupport = (doc.getObject("XZ_Plane016"), [""])
sketch17.MapMode = "FlatFace"
sketch17.addGeometry([
    Part.LineSegment(V(10, -30, 0), V(10, -50, 0)),  # 0
    Part.LineSegment(V(10, -50, 0), V(50, -50, 0)),  # 1
    Part.LineSegment(V(50, -50, 0), V(50, -10, 0)),  # 2
    Part.LineSegment(V(50, -10, 0), V(30, -10, 0)),  # 3
    Part.LineSegment(V(30, -10, 0), V(30, -30, 0)),  # 4
    Part.LineSegment(V(30, -30, 0), V(10, -30, 0)),  # 5
], False)
sketch17.addConstraint([
    Sketcher.Constraint("Coincident", 0, 2, 1, 1),
    Sketcher.Constraint("Coincident", 1, 2, 2, 1),
    Sketcher.Constraint("Coincident", 2, 2, 3, 1),
    Sketcher.Constraint("Coincident", 3, 2, 4, 1),
    Sketcher.Constraint("Coincident", 4, 2, 5, 1),
    Sketcher.Constraint("Coincident", 5, 2, 0, 1),
    Sketcher.Constraint("Vertical", 0),
    Sketcher.Constraint("Horizontal", 1),
    Sketcher.Constraint("Vertical", 2),
    Sketcher.Constraint("Horizontal", 3),
    Sketcher.Constraint("Vertical", 4),
    Sketcher.Constraint("Horizontal", 5),
    Sketcher.Constraint("Equal", 3, 5),
    Sketcher.Constraint("Equal", 5, 0),
    Sketcher.Constraint("Equal", 1, 2),
    Sketcher.Constraint("DistanceX", 1, 1, 1, 2, 40.0),
    Sketcher.Constraint("DistanceX", -1, 1, 0, 2, 10.0),
    Sketcher.Constraint("DistanceY", 0, 2, -1, 1, 50.0),
])
pad17 = doc.addObject("PartDesign::Pad", "Pad016")
body17.addObject(pad17)
pad17.Profile = sketch17
pad17.Length = 0.5
pad17.Midplane = True
body18 = doc.addObject("PartDesign::Body", "Body017")

# Sketch on XZ plane
sketch18 = doc.addObject("Sketcher::SketchObject", "Sketch017")
body18.addObject(sketch18)
sketch18.AttachmentSupport = (doc.getObject("XZ_Plane017"), [""])
sketch18.MapMode = "FlatFace"
sketch18.addGeometry([
    Part.LineSegment(V(30, 10, 0), V(50, 10, 0)),  # 0
    Part.LineSegment(V(50, 10, 0), V(50, 50, 0)),  # 1
    Part.LineSegment(V(50, 50, 0), V(10, 50, 0)),  # 2
    Part.LineSegment(V(10, 50, 0), V(10, 30, 0)),  # 3
    Part.LineSegment(V(10, 30, 0), V(30, 30, 0)),  # 4
    Part.LineSegment(V(30, 30, 0), V(30, 10, 0)),  # 5
], False)
sketch18.addConstraint([
    Sketcher.Constraint("Coincident", 0, 2, 1, 1),
    Sketcher.Constraint("Coincident", 1, 2, 2, 1),
    Sketcher.Constraint("Coincident", 2, 2, 3, 1),
    Sketcher.Constraint("Coincident", 3, 2, 4, 1),
    Sketcher.Constraint("Coincident", 4, 2, 5, 1),
    Sketcher.Constraint("Coincident", 5, 2, 0, 1),
    Sketcher.Constraint("Horizontal", 0),
    Sketcher.Constraint("Vertical", 1),
    Sketcher.Constraint("Horizontal", 2),
    Sketcher.Constraint("Vertical", 3),
    Sketcher.Constraint("Horizontal", 4),
    Sketcher.Constraint("Vertical", 5),
    Sketcher.Constraint("Equal", 0, 4),
    Sketcher.Constraint("Equal", 2, 1),
    Sketcher.Constraint("Equal", 4, 3),
    Sketcher.Constraint("DistanceX", 0, 1, 0, 2, 20.0),
    Sketcher.Constraint("DistanceX", -1, 1, 0, 2, 50.0),
    Sketcher.Constraint("DistanceY", -1, 1, 0, 2, 10.0),
])
pad18 = doc.addObject("PartDesign::Pad", "Pad017")
body18.addObject(pad18)
pad18.Profile = sketch18
pad18.Length = 0.5
pad18.Midplane = True

doc.recompute()
